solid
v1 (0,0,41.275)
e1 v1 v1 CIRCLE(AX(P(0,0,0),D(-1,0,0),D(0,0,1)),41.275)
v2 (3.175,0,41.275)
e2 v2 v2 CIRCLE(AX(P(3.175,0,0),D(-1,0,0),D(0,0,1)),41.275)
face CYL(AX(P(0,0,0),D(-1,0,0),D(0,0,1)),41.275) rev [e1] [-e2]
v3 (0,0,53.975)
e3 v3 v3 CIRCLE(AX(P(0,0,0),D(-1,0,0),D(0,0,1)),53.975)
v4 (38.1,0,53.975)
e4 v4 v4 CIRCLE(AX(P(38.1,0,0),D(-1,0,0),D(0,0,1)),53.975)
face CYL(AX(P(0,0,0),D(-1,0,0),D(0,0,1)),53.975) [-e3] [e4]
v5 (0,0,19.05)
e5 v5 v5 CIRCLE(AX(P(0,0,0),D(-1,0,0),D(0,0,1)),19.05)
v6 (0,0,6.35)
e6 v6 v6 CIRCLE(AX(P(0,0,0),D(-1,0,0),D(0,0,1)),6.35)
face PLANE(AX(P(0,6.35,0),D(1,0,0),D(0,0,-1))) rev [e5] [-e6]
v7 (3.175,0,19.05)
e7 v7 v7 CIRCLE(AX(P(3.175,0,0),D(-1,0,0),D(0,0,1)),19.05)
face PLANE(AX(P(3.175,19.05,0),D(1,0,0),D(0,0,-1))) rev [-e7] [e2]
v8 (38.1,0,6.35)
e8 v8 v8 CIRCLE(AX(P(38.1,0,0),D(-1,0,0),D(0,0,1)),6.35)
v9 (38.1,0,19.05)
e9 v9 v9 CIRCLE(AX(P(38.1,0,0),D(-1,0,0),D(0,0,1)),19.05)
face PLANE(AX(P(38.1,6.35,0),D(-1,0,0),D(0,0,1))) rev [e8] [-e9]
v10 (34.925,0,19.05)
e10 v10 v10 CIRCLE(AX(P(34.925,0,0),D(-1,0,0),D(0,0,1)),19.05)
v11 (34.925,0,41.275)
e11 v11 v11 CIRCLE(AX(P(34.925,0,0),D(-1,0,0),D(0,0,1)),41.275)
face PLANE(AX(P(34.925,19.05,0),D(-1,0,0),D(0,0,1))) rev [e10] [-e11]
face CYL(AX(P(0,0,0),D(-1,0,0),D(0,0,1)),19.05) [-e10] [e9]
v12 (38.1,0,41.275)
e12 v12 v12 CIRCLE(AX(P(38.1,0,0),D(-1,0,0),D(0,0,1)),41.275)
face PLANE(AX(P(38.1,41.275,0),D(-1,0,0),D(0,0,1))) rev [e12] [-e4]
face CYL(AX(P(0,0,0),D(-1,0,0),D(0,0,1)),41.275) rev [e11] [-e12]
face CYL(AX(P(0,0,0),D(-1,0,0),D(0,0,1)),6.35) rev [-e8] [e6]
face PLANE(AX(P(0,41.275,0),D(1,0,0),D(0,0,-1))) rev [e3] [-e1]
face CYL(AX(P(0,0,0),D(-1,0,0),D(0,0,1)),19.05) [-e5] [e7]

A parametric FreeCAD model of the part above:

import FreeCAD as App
import Part
import Sketcher
Q = App.Units.Quantity

doc = App.newDocument("Part")
params = doc.addObject("Spreadsheet::Sheet", "Params")
for row, (alias, value) in enumerate([
    ("sketch1_width", "1.5 in"),
    ("sketch1_height", "0.5 in"),
    ("sketch1_width2", "0.125 in"),
    ("sketch1_height2", "0.875 in"),
    ("revolution_angle", "360 deg"),
], start=1):
    params.set(f"A{row}", alias)
    params.set(f"B{row}", "=" + value)
    params.setAlias(f"B{row}", alias)

body = doc.addObject("PartDesign::Body", "Body")

sketch1 = body.newObject("Sketcher::SketchObject", "Sketch")
sketch1.AttachmentSupport = (doc.getObject("XY_Plane"), [""])
sketch1.MapMode = "FlatFace"
sketch1.addGeometry([
    Part.LineSegment(App.Vector(0, 19.05, 0), App.Vector(0, 6.35, 0)),
    Part.LineSegment(App.Vector(0, 6.35, 0), App.Vector(38.1, 6.35, 0)),
    Part.LineSegment(App.Vector(38.1, 6.35, 0), App.Vector(38.1, 19.05, 0)),
    Part.LineSegment(App.Vector(38.1, 19.05, 0), App.Vector(34.925, 19.05, 0)),
    Part.LineSegment(App.Vector(34.925, 19.05, 0), App.Vector(34.925, 41.275, 0)),
    Part.LineSegment(App.Vector(34.925, 41.275, 0), App.Vector(38.1, 41.275, 0)),
    Part.LineSegment(App.Vector(38.1, 41.275, 0), App.Vector(38.1, 53.975, 0)),
    Part.LineSegment(App.Vector(38.1, 53.975, 0), App.Vector(0, 53.975, 0)),
    Part.LineSegment(App.Vector(0, 53.975, 0), App.Vector(0, 41.275, 0)),
    Part.LineSegment(App.Vector(0, 41.275, 0), App.Vector(3.175, 41.275, 0)),
    Part.LineSegment(App.Vector(3.175, 41.275, 0), App.Vector(3.175, 19.05, 0)),
    Part.LineSegment(App.Vector(3.175, 19.05, 0), App.Vector(0, 19.05, 0)),
], False)
sketch1.addConstraint([
    Sketcher.Constraint("Coincident", 0, 2, 1, 1),
    Sketcher.Constraint("Coincident", 1, 2, 2, 1),
    Sketcher.Constraint("Coincident", 2, 2, 3, 1),
    Sketcher.Constraint("Coincident", 3, 2, 4, 1),
    Sketcher.Constraint("Coincident", 4, 2, 5, 1),
    Sketcher.Constraint("Coincident", 5, 2, 6, 1),
    Sketcher.Constraint("Coincident", 6, 2, 7, 1),
    Sketcher.Constraint("Coincident", 7, 2, 8, 1),
    Sketcher.Constraint("Coincident", 8, 2, 9, 1),
    Sketcher.Constraint("Coincident", 9, 2, 10, 1),
    Sketcher.Constraint("Coincident", 10, 2, 11, 1),
    Sketcher.Constraint("Coincident", 11, 2, 0, 1),
    Sketcher.Constraint("Vertical", 0),
    Sketcher.Constraint("Horizontal", 1),
    Sketcher.Constraint("Vertical", 2),
    Sketcher.Constraint("Horizontal", 3),
    Sketcher.Constraint("Vertical", 4),
    Sketcher.Constraint("Horizontal", 5),
    Sketcher.Constraint("Vertical", 6),
    Sketcher.Constraint("Horizontal", 7),
    Sketcher.Constraint("Vertical", 8),
    Sketcher.Constraint("Horizontal", 9),
    Sketcher.Constraint("Vertical", 10),
    Sketcher.Constraint("Horizontal", 11),
    Sketcher.Constraint("PointOnObject", 0, 2, -2),
    Sketcher.Constraint("PointOnObject", 7, 2, -2),
    Sketcher.Constraint("Horizontal", 5, 2, 8, 2),
    Sketcher.Constraint("Horizontal", 3, 2, 10, 2),
    Sketcher.Constraint("Vertical", 2, 2, 5, 2),
    Sketcher.Constraint("Equal", 5, 9),
    Sketcher.Constraint("Equal", 2, 6),
    Sketcher.Constraint("DistanceX", 1, 1, 1, 2, Q("1.5 in")),
    Sketcher.Constraint("DistanceY", 0, 2, 0, 1, Q("0.5 in")),
    Sketcher.Constraint("DistanceX", 3, 2, 3, 1, Q("0.125 in")),
    Sketcher.Constraint("DistanceY", 4, 1, 4, 2, Q("0.875 in")),
    Sketcher.Constraint("DistanceY", -1, 1, 0, 2, Q("0.25 in")),
])
sketch1.setExpression("Constraints[31]", "Params.sketch1_width")
sketch1.setExpression("Constraints[32]", "Params.sketch1_height")
sketch1.setExpression("Constraints[33]", "Params.sketch1_width2")
sketch1.setExpression("Constraints[34]", "Params.sketch1_height2")
revolution = body.newObject("PartDesign::Revolution", "Revolution")
revolution.Profile = sketch1
revolution.ReferenceAxis = (sketch1, ["H_Axis"])
revolution.setExpression("Angle", "Params.revolution_angle")

doc.recompute()
